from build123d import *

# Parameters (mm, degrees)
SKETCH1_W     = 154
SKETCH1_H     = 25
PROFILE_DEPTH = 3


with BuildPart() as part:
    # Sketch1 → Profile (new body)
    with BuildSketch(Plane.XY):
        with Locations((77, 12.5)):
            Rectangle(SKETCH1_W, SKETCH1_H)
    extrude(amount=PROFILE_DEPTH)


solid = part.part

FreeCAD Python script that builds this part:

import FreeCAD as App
import Part
import Sketcher
Q = App.Units.Quantity


def add_polygon(sketch, points):
    """Adds a closed chain of lines whose ends are joined by coincident constraints."""
    first, n = sketch.GeometryCount, len(points)
    for a, b in zip(points, points[1:] + points[:1]):
        sketch.addGeometry(Part.LineSegment(App.Vector(*a, 0), App.Vector(*b, 0)), False)
    for i in range(n):
        sketch.addConstraint(Sketcher.Constraint("Coincident", first + i, 2, first + (i + 1) % n, 1))

doc = App.newDocument("Part")
body = doc.addObject("PartDesign::Body", "Body")

# Sketch on XY plane
sketch1 = body.newObject("Sketcher::SketchObject", "Sketch")
sketch1.AttachmentSupport = (doc.getObject("XY_Plane"), [""])
sketch1.MapMode = "FlatFace"
add_polygon(sketch1, [(0, 25), (0, 0), (154, 0), (154, 25)])  # lines 0-3
sketch1.addConstraint([
    Sketcher.Constraint("Vertical", 0),
    Sketcher.Constraint("Horizontal", 1),
    Sketcher.Constraint("Vertical", 2),
    Sketcher.Constraint("Horizontal", 3),
    Sketcher.Constraint("Coincident", 0, 2, -1, 1),
    Sketcher.Constraint("DistanceX", 1, 1, 1, 2, Q("154 mm")),
    Sketcher.Constraint("DistanceY", 0, 2, 0, 1, Q("25 mm")),
])
pad1 = body.newObject("PartDesign::Pad", "Pad")
pad1.Profile = sketch1
pad1.Length = 3

doc.recompute()
